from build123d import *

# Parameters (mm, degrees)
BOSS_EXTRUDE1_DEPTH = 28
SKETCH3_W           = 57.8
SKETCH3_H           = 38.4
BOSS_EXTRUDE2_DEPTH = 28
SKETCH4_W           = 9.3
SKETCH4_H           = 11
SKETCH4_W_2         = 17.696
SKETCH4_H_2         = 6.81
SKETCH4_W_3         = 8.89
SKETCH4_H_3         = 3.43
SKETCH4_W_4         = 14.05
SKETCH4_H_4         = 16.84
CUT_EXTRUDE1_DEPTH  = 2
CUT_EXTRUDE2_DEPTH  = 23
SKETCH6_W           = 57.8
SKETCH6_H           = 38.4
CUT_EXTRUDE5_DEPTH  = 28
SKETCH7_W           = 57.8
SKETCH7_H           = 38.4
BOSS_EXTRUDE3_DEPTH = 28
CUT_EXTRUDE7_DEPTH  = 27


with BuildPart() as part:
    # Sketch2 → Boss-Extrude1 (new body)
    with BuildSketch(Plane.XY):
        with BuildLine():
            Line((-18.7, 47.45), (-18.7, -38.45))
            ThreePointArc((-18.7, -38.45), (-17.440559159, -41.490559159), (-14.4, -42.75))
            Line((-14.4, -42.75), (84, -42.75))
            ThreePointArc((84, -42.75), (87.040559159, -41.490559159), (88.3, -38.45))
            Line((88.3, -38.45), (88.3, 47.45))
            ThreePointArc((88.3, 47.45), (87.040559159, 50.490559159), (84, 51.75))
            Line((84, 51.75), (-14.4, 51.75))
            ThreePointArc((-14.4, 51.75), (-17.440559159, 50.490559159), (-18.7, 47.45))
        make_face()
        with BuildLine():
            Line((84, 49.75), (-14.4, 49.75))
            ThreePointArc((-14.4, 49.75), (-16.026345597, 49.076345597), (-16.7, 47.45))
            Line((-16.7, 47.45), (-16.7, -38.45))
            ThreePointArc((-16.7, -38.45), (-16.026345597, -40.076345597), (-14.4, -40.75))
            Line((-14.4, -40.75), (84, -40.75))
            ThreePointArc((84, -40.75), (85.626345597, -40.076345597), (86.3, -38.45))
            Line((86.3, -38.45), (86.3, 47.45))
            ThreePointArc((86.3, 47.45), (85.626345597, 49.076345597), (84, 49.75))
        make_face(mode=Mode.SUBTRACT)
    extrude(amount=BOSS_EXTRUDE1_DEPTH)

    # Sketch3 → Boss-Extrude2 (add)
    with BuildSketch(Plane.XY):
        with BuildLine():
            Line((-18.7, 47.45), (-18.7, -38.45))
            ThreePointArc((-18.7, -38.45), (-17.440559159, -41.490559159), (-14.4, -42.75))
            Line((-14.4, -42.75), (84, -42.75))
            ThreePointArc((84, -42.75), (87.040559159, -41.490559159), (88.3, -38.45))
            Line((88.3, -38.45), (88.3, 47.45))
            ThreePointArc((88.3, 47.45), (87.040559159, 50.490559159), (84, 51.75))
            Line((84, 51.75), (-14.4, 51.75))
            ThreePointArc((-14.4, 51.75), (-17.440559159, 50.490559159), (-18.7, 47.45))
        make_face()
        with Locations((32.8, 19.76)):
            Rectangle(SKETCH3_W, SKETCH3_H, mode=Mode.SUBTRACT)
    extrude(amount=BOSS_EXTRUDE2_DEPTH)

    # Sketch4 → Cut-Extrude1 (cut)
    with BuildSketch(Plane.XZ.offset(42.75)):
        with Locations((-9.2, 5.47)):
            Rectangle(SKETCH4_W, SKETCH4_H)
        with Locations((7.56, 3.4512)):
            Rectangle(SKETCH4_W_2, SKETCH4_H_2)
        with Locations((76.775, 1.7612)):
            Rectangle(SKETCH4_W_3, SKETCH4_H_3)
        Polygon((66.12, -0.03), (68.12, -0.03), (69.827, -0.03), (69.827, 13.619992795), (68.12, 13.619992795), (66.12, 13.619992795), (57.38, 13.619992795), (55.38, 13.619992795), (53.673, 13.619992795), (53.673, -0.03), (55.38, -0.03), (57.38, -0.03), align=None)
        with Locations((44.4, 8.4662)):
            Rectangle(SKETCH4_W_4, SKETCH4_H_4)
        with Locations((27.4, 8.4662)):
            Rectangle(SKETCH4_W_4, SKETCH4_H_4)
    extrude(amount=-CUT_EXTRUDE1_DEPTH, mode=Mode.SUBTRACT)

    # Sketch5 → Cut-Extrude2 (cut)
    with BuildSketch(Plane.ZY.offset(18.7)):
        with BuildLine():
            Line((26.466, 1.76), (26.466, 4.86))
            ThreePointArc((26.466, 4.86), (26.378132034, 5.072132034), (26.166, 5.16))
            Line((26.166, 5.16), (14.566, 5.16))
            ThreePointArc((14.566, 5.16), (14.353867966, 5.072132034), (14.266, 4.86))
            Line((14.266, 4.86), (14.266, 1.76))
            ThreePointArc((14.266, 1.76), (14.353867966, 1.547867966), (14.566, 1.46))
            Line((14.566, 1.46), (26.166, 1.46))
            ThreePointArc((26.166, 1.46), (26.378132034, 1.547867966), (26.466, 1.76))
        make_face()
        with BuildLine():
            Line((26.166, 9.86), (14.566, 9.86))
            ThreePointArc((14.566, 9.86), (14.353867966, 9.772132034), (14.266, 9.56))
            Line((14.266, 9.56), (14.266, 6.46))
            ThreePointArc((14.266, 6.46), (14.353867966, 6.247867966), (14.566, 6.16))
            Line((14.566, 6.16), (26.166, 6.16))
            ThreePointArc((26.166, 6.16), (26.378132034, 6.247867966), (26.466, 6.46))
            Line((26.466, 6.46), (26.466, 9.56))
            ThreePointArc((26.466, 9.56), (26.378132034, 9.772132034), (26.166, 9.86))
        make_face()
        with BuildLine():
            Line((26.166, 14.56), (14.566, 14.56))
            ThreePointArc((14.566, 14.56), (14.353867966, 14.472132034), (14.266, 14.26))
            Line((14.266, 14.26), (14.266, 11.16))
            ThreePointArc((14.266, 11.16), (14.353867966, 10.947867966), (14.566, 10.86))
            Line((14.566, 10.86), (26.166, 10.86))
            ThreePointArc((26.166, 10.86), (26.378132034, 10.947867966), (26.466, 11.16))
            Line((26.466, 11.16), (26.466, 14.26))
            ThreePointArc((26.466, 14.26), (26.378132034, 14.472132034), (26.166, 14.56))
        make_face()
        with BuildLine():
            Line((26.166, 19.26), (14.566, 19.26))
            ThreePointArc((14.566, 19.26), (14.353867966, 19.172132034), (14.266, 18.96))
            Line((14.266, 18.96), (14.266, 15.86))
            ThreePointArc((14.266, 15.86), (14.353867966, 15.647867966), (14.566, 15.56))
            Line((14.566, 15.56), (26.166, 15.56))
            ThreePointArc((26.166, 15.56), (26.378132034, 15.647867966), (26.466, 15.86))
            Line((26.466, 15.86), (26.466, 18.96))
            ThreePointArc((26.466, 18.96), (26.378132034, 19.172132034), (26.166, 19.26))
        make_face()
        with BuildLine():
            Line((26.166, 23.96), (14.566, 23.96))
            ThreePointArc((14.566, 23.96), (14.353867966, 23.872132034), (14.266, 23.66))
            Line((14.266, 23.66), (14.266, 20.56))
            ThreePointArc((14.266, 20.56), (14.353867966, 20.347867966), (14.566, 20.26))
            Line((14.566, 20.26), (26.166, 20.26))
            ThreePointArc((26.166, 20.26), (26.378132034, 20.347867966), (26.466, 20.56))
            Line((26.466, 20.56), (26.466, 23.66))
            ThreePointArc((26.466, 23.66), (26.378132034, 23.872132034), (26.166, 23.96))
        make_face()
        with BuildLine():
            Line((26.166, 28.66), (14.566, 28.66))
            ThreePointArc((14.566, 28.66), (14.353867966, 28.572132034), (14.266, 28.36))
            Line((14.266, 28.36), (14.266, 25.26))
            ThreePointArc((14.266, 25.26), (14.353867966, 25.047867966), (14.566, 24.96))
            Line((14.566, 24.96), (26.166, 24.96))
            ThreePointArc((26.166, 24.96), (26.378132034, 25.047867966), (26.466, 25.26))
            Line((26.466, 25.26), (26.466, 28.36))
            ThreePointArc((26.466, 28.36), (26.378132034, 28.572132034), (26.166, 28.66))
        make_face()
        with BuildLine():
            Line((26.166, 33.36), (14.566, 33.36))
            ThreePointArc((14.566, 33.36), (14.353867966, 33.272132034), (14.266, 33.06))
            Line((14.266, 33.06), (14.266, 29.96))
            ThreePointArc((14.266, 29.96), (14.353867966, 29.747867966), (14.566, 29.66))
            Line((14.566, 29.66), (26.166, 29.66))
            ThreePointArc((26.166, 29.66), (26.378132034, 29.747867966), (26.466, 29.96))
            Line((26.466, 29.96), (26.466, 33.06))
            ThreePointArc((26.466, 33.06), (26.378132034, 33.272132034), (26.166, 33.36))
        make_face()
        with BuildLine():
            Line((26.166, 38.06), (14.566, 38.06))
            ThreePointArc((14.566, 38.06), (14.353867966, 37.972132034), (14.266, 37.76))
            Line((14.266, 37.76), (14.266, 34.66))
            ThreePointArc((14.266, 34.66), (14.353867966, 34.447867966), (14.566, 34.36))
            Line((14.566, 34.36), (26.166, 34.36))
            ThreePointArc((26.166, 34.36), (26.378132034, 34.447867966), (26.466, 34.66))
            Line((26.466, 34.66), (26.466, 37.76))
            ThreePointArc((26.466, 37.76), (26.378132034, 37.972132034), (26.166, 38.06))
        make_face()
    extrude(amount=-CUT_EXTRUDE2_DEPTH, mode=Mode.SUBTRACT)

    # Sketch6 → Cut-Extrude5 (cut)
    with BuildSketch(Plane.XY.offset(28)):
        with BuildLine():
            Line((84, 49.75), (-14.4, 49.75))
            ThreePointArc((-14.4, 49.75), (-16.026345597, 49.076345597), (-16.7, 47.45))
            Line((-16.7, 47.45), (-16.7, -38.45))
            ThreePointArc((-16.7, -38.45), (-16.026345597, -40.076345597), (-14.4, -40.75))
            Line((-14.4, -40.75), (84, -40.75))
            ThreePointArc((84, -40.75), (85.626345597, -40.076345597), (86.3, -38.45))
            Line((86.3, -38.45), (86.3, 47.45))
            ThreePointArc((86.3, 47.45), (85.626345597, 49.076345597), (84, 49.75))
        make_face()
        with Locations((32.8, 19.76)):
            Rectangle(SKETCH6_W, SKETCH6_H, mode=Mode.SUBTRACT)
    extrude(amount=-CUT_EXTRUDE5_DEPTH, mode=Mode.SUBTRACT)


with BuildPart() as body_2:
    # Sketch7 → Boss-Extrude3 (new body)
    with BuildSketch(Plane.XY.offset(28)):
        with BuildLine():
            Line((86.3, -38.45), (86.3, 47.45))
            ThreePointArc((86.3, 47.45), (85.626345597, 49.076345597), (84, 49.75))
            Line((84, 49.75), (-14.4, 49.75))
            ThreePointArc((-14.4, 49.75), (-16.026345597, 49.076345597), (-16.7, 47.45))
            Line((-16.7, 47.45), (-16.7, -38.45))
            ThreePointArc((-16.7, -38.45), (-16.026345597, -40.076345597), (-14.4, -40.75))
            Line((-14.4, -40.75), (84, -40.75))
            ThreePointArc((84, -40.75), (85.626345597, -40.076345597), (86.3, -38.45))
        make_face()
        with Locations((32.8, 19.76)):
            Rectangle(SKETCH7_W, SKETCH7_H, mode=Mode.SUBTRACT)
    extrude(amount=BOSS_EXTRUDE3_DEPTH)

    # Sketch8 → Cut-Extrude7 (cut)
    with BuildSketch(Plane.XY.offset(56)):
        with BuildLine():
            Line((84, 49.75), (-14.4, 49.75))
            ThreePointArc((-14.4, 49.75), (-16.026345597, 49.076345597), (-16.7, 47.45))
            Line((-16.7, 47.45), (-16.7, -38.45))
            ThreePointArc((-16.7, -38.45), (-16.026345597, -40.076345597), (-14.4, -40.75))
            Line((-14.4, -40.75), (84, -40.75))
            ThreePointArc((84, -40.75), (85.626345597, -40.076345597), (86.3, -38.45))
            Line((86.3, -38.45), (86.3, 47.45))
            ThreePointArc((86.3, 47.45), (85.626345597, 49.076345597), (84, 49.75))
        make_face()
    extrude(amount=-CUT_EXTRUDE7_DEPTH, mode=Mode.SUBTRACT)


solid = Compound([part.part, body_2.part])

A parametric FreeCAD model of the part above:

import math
import FreeCAD as App
import Part
import Sketcher
Q = App.Units.Quantity


def add_polygon(sketch, points):
    """Adds a closed chain of lines whose ends are joined by coincident constraints."""
    first, n = sketch.GeometryCount, len(points)
    for a, b in zip(points, points[1:] + points[:1]):
        sketch.addGeometry(Part.LineSegment(App.Vector(*a, 0), App.Vector(*b, 0)), False)
    for i in range(n):
        sketch.addConstraint(Sketcher.Constraint("Coincident", first + i, 2, first + (i + 1) % n, 1))

doc = App.newDocument("Part")
body = doc.addObject("PartDesign::Body", "Body")

# Sketch on XY plane
sketch1 = doc.addObject("Sketcher::SketchObject", "Sketch")
body.addObject(sketch1)
sketch1.AttachmentSupport = (doc.XY_Plane, [""])
sketch1.MapMode = "FlatFace"
sketch1.addGeometry([
    Part.LineSegment(App.Vector(-18.7, 47.5, 0), App.Vector(-18.7, -38.5, 0)),  # 0
    Part.ArcOfCircle(Part.Circle(App.Vector(-14.4, -38.5, 0), App.Vector(0, 0, 1), 4.3), math.radians(180), math.radians(270)),  # 1
    Part.LineSegment(App.Vector(-14.4, -42.8, 0), App.Vector(84, -42.8, 0)),  # 2
    Part.ArcOfCircle(Part.Circle(App.Vector(84, -38.5, 0), App.Vector(0, 0, 1), 4.3), math.radians(-90), math.radians(0)),  # 3
    Part.LineSegment(App.Vector(88.3, -38.5, 0), App.Vector(88.3, 47.5, 0)),  # 4
    Part.ArcOfCircle(Part.Circle(App.Vector(84, 47.5, 0), App.Vector(0, 0, 1), 4.3), math.radians(0), math.radians(90)),  # 5
    Part.LineSegment(App.Vector(84, 51.8, 0), App.Vector(-14.4, 51.8, 0)),  # 6
    Part.ArcOfCircle(Part.Circle(App.Vector(-14.4, 47.5, 0), App.Vector(0, 0, 1), 4.3), math.radians(90), math.radians(180)),  # 7
    Part.LineSegment(App.Vector(-14.4, 49.8, 0), App.Vector(84, 49.8, 0)),  # 8
    Part.ArcOfCircle(Part.Circle(App.Vector(84, 47.5, 0), App.Vector(0, 0, 1), 2.3), math.radians(0), math.radians(90)),  # 9
    Part.LineSegment(App.Vector(86.3, 47.5, 0), App.Vector(86.3, -38.5, 0)),  # 10
    Part.ArcOfCircle(Part.Circle(App.Vector(84, -38.5, 0), App.Vector(0, 0, 1), 2.3), math.radians(-90), math.radians(0)),  # 11
    Part.LineSegment(App.Vector(84, -40.8, 0), App.Vector(-14.4, -40.8, 0)),  # 12
    Part.ArcOfCircle(Part.Circle(App.Vector(-14.4, -38.5, 0), App.Vector(0, 0, 1), 2.3), math.radians(180), math.radians(270)),  # 13
    Part.LineSegment(App.Vector(-16.7, -38.5, 0), App.Vector(-16.7, 47.5, 0)),  # 14
    Part.ArcOfCircle(Part.Circle(App.Vector(-14.4, 47.5, 0), App.Vector(0, 0, 1), 2.3), math.radians(90), math.radians(180)),  # 15
], False)
sketch1.addConstraint([
    Sketcher.Constraint("Tangent", 0, 2, 1, 1),
    Sketcher.Constraint("Tangent", 1, 2, 2, 1),
    Sketcher.Constraint("Tangent", 2, 2, 3, 1),
    Sketcher.Constraint("Tangent", 3, 2, 4, 1),
    Sketcher.Constraint("Tangent", 4, 2, 5, 1),
    Sketcher.Constraint("Tangent", 5, 2, 6, 1),
    Sketcher.Constraint("Tangent", 6, 2, 7, 1),
    Sketcher.Constraint("Tangent", 7, 2, 0, 1),
    Sketcher.Constraint("Tangent", 8, 2, 9, 2),
    Sketcher.Constraint("Tangent", 9, 1, 10, 1),
    Sketcher.Constraint("Tangent", 10, 2, 11, 2),
    Sketcher.Constraint("Tangent", 11, 1, 12, 1),
    Sketcher.Constraint("Tangent", 12, 2, 13, 2),
    Sketcher.Constraint("Tangent", 13, 1, 14, 1),
    Sketcher.Constraint("Tangent", 14, 2, 15, 2),
    Sketcher.Constraint("Tangent", 15, 1, 8, 1),
    Sketcher.Constraint("Vertical", 0),
    Sketcher.Constraint("Horizontal", 2),
    Sketcher.Constraint("Vertical", 4),
    Sketcher.Constraint("Horizontal", 6),
    Sketcher.Constraint("Horizontal", 8),
    Sketcher.Constraint("Vertical", 10),
    Sketcher.Constraint("Horizontal", 12),
    Sketcher.Constraint("Vertical", 14),
    Sketcher.Constraint("Coincident", 9, 3, 5, 3),
    Sketcher.Constraint("Coincident", 11, 3, 3, 3),
    Sketcher.Constraint("Coincident", 13, 3, 1, 3),
    Sketcher.Constraint("Equal", 1, 3),
    Sketcher.Constraint("Equal", 3, 5),
    Sketcher.Constraint("Equal", 5, 7),
    Sketcher.Constraint("Equal", 13, 15),
    Sketcher.Constraint("Radius", 1, Q("4.3 mm")),
    Sketcher.Constraint("Radius", 9, Q("2.3 mm")),
    Sketcher.Constraint("DistanceX", 2, 1, 2, 2, Q("98.4 mm")),
    Sketcher.Constraint("DistanceY", 0, 2, 0, 1, Q("85.9 mm")),
    Sketcher.Constraint("DistanceX", -1, 1, 3, 3, Q("84 mm")),
    Sketcher.Constraint("DistanceY", 1, 3, -1, 1, Q("38.45 mm")),
])
pad1 = doc.addObject("PartDesign::Pad", "Pad")
body.addObject(pad1)
pad1.Profile = sketch1
pad1.Length = 28

# Sketch on XY plane
sketch2 = doc.addObject("Sketcher::SketchObject", "Sketch001")
body.addObject(sketch2)
sketch2.AttachmentSupport = (doc.XY_Plane, [""])
sketch2.MapMode = "FlatFace"
sketch2.addGeometry(Part.LineSegment(App.Vector(-18.7, 47.5, 0), App.Vector(-18.7, -38.5, 0)), False)  # 0
sketch2.addGeometry(Part.ArcOfCircle(Part.Circle(App.Vector(-14.4, -38.5, 0), App.Vector(0, 0, 1), 4.3), math.radians(180), math.radians(270)), False)  # 1
sketch2.addGeometry(Part.LineSegment(App.Vector(-14.4, -42.8, 0), App.Vector(84, -42.8, 0)), False)  # 2
sketch2.addGeometry(Part.ArcOfCircle(Part.Circle(App.Vector(84, -38.5, 0), App.Vector(0, 0, 1), 4.3), math.radians(-90), math.radians(0)), False)  # 3
sketch2.addGeometry(Part.LineSegment(App.Vector(88.3, -38.5, 0), App.Vector(88.3, 47.5, 0)), False)  # 4
sketch2.addGeometry(Part.ArcOfCircle(Part.Circle(App.Vector(84, 47.5, 0), App.Vector(0, 0, 1), 4.3), math.radians(0), math.radians(90)), False)  # 5
sketch2.addGeometry(Part.LineSegment(App.Vector(84, 51.8, 0), App.Vector(-14.4, 51.8, 0)), False)  # 6
sketch2.addGeometry(Part.ArcOfCircle(Part.Circle(App.Vector(-14.4, 47.5, 0), App.Vector(0, 0, 1), 4.3), math.radians(90), math.radians(180)), False)  # 7
add_polygon(sketch2, [(61.7, 0.6), (3.9, 0.6), (3.9, 39), (61.7, 39)])  # lines 8-11
sketch2.addConstraint([
    Sketcher.Constraint("Tangent", 0, 2, 1, 1),
    Sketcher.Constraint("Tangent", 1, 2, 2, 1),
    Sketcher.Constraint("Tangent", 2, 2, 3, 1),
    Sketcher.Constraint("Tangent", 3, 2, 4, 1),
    Sketcher.Constraint("Tangent", 4, 2, 5, 1),
    Sketcher.Constraint("Tangent", 5, 2, 6, 1),
    Sketcher.Constraint("Tangent", 6, 2, 7, 1),
    Sketcher.Constraint("Tangent", 7, 2, 0, 1),
    Sketcher.Constraint("Vertical", 0),
    Sketcher.Constraint("Horizontal", 2),
    Sketcher.Constraint("Vertical", 4),
    Sketcher.Constraint("Horizontal", 6),
    Sketcher.Constraint("Horizontal", 8),
    Sketcher.Constraint("Vertical", 9),
    Sketcher.Constraint("Horizontal", 10),
    Sketcher.Constraint("Vertical", 11),
    Sketcher.Constraint("Equal", 1, 3),
    Sketcher.Constraint("Equal", 3, 5),
    Sketcher.Constraint("Equal", 5, 7),
    Sketcher.Constraint("Radius", 1, Q("4.3 mm")),
    Sketcher.Constraint("DistanceX", 2, 1, 2, 2, Q("98.4 mm")),
    Sketcher.Constraint("DistanceX", 8, 2, 8, 1, Q("57.8 mm")),
    Sketcher.Constraint("DistanceY", 0, 2, 0, 1, Q("85.9 mm")),
    Sketcher.Constraint("DistanceY", 9, 1, 9, 2, Q("38.4 mm")),
    Sketcher.Constraint("DistanceX", -1, 1, 3, 3, Q("84 mm")),
    Sketcher.Constraint("DistanceX", -1, 1, 8, 2, Q("3.9 mm")),
    Sketcher.Constraint("DistanceY", 1, 3, -1, 1, Q("38.45 mm")),
    Sketcher.Constraint("DistanceY", -1, 1, 8, 2, Q("0.56 mm")),
])
pad2 = doc.addObject("PartDesign::Pad", "Pad001")
body.addObject(pad2)
pad2.Profile = sketch2
pad2.Length = 28

# Sketch on XZ plane
sketch3 = doc.addObject("Sketcher::SketchObject", "Sketch002")
body.addObject(sketch3)
sketch3.AttachmentSupport = (doc.XZ_Plane, [""])
sketch3.MapMode = "FlatFace"
sketch3.AttachmentOffset = App.Placement(App.Vector(0, 0, 42.75), App.Rotation())
add_polygon(sketch3, [(-13.8, 11), (-13.8, 0), (-4.5, 0), (-4.5, 11)])  # lines 0-3
add_polygon(sketch3, [(-1.3, 6.9), (-1.3, 0), (16.4, 0), (16.4, 6.9)])  # lines 4-7
add_polygon(sketch3, [(72.3, 3.5), (72.3, 0), (81.2, 0), (81.2, 3.5)])  # lines 8-11
add_polygon(sketch3, [(69.8, 0), (69.8, 13.6), (53.7, 13.6), (53.7, 0)])  # lines 12-15
add_polygon(sketch3, [(37.4, 16.9), (37.4, 0), (51.4, 0), (51.4, 16.9)])  # lines 16-19
add_polygon(sketch3, [(20.4, 16.9), (20.4, 0), (34.4, 0), (34.4, 16.9)])  # lines 20-23
sketch3.addConstraint([
    Sketcher.Constraint("Vertical", 0),
    Sketcher.Constraint("Horizontal", 1),
    Sketcher.Constraint("Vertical", 2),
    Sketcher.Constraint("Horizontal", 3),
    Sketcher.Constraint("Vertical", 4),
    Sketcher.Constraint("Horizontal", 5),
    Sketcher.Constraint("Vertical", 6),
    Sketcher.Constraint("Horizontal", 7),
    Sketcher.Constraint("Vertical", 8),
    Sketcher.Constraint("Horizontal", 9),
    Sketcher.Constraint("Vertical", 10),
    Sketcher.Constraint("Horizontal", 11),
    Sketcher.Constraint("Vertical", 12),
    Sketcher.Constraint("Horizontal", 13),
    Sketcher.Constraint("Vertical", 14),
    Sketcher.Constraint("Horizontal", 15),
    Sketcher.Constraint("Vertical", 16),
    Sketcher.Constraint("Horizontal", 17),
    Sketcher.Constraint("Vertical", 18),
    Sketcher.Constraint("Horizontal", 19),
    Sketcher.Constraint("Vertical", 20),
    Sketcher.Constraint("Horizontal", 21),
    Sketcher.Constraint("Vertical", 22),
    Sketcher.Constraint("Horizontal", 23),
    Sketcher.Constraint("Horizontal", 5, 2, 8, 2),
    Sketcher.Constraint("Horizontal", 1, 2, 14, 2),
    Sketcher.Constraint("Horizontal", 9, 2, 16, 2),
    Sketcher.Constraint("Horizontal", 17, 2, 20, 2),
    Sketcher.Constraint("Horizontal", 19, 2, 22, 2),
    Sketcher.Constraint("Equal", 19, 21),
    Sketcher.Constraint("DistanceY", 0, 2, 0, 1, Q("11 mm")),
    Sketcher.Constraint("DistanceX", 1, 1, 1, 2, Q("9.3 mm")),
    Sketcher.Constraint("DistanceX", 20, 2, 16, 2, Q("17 mm")),
    Sketcher.Constraint("DistanceX", 9, 1, 9, 2, Q("8.89 mm")),
    Sketcher.Constraint("DistanceX", 17, 1, 17, 2, Q("14.05 mm")),
    Sketcher.Constraint("DistanceY", 4, 2, 4, 1, Q("6.81 mm")),
    Sketcher.Constraint("DistanceY", 8, 2, 8, 1, Q("3.43 mm")),
    Sketcher.Constraint("DistanceY", 16, 2, 16, 1, Q("16.84 mm")),
    Sketcher.Constraint("DistanceX", 5, 1, 5, 2, Q("17.696 mm")),
    Sketcher.Constraint("DistanceX", 13, 2, 13, 1, Q("16.154 mm")),
    Sketcher.Constraint("DistanceX", 0, 2, -1, 1, Q("13.85 mm")),
    Sketcher.Constraint("DistanceY", 0, 2, -1, 1, Q("0.03 mm")),
    Sketcher.Constraint("DistanceX", -1, 1, 8, 2, Q("72.33 mm")),
    Sketcher.Constraint("DistanceX", 4, 2, -1, 1, Q("1.288 mm")),
    Sketcher.Constraint("DistanceX", -1, 1, 12, 2, Q("69.827 mm")),
    Sketcher.Constraint("DistanceX", -1, 1, 16, 2, Q("37.375 mm")),
    Sketcher.Constraint("DistanceY", -1, 1, 4, 2, Q("0.0462 mm")),
    Sketcher.Constraint("DistanceY", 12, 1, 12, 2, Q("13.649993 mm")),
])
pocket1 = doc.addObject("PartDesign::Pocket", "Pocket")
body.addObject(pocket1)
pocket1.Profile = sketch3
pocket1.Length = 2

# Sketch on YZ plane
sketch4 = doc.addObject("Sketcher::SketchObject", "Sketch003")
body.addObject(sketch4)
sketch4.AttachmentSupport = (doc.YZ_Plane, [""])
sketch4.MapMode = "FlatFace"
sketch4.AttachmentOffset = App.Placement(App.Vector(0, 0, -18.7), App.Rotation())
sketch4.addGeometry([
    Part.LineSegment(App.Vector(1.76, 26.47, 0), App.Vector(4.86, 26.47, 0)),  # 0
    Part.ArcOfCircle(Part.Circle(App.Vector(4.86, 26.17, 0), App.Vector(0, 0, 1), 0.3), math.radians(0), math.radians(90)),  # 1
    Part.LineSegment(App.Vector(5.16, 26.17, 0), App.Vector(5.16, 14.57, 0)),  # 2
    Part.ArcOfCircle(Part.Circle(App.Vector(4.86, 14.57, 0), App.Vector(0, 0, 1), 0.3), math.radians(-90), math.radians(0)),  # 3
    Part.LineSegment(App.Vector(4.86, 14.27, 0), App.Vector(1.76, 14.27, 0)),  # 4
    Part.ArcOfCircle(Part.Circle(App.Vector(1.76, 14.57, 0), App.Vector(0, 0, 1), 0.3), math.radians(-180), math.radians(-90)),  # 5
    Part.LineSegment(App.Vector(1.46, 14.57, 0), App.Vector(1.46, 26.17, 0)),  # 6
    Part.ArcOfCircle(Part.Circle(App.Vector(1.76, 26.17, 0), App.Vector(0, 0, 1), 0.3), math.radians(90), math.radians(180)),  # 7
    Part.LineSegment(App.Vector(9.86, 26.17, 0), App.Vector(9.86, 14.57, 0)),  # 8
    Part.ArcOfCircle(Part.Circle(App.Vector(9.56, 14.57, 0), App.Vector(0, 0, 1), 0.3), math.radians(-90), math.radians(0)),  # 9
    Part.LineSegment(App.Vector(9.56, 14.27, 0), App.Vector(6.46, 14.27, 0)),  # 10
    Part.ArcOfCircle(Part.Circle(App.Vector(6.46, 14.57, 0), App.Vector(0, 0, 1), 0.3), math.radians(-180), math.radians(-90)),  # 11
    Part.LineSegment(App.Vector(6.16, 14.57, 0), App.Vector(6.16, 26.17, 0)),  # 12
    Part.ArcOfCircle(Part.Circle(App.Vector(6.46, 26.17, 0), App.Vector(0, 0, 1), 0.3), math.radians(90), math.radians(180)),  # 13
    Part.LineSegment(App.Vector(6.46, 26.47, 0), App.Vector(9.56, 26.47, 0)),  # 14
    Part.ArcOfCircle(Part.Circle(App.Vector(9.56, 26.17, 0), App.Vector(0, 0, 1), 0.3), math.radians(0), math.radians(90)),  # 15
    Part.LineSegment(App.Vector(14.56, 26.17, 0), App.Vector(14.56, 14.57, 0)),  # 16
    Part.ArcOfCircle(Part.Circle(App.Vector(14.26, 14.57, 0), App.Vector(0, 0, 1), 0.3), math.radians(-90), math.radians(0)),  # 17
    Part.LineSegment(App.Vector(14.26, 14.27, 0), App.Vector(11.16, 14.27, 0)),  # 18
    Part.ArcOfCircle(Part.Circle(App.Vector(11.16, 14.57, 0), App.Vector(0, 0, 1), 0.3), math.radians(-180), math.radians(-90)),  # 19
    Part.LineSegment(App.Vector(10.86, 14.57, 0), App.Vector(10.86, 26.17, 0)),  # 20
    Part.ArcOfCircle(Part.Circle(App.Vector(11.16, 26.17, 0), App.Vector(0, 0, 1), 0.3), math.radians(90), math.radians(180)),  # 21
    Part.LineSegment(App.Vector(11.16, 26.47, 0), App.Vector(14.26, 26.47, 0)),  # 22
    Part.ArcOfCircle(Part.Circle(App.Vector(14.26, 26.17, 0), App.Vector(0, 0, 1), 0.3), math.radians(0), math.radians(90)),  # 23
    Part.LineSegment(App.Vector(19.26, 26.17, 0), App.Vector(19.26, 14.57, 0)),  # 24
    Part.ArcOfCircle(Part.Circle(App.Vector(18.96, 14.57, 0), App.Vector(0, 0, 1), 0.3), math.radians(-90), math.radians(0)),  # 25
    Part.LineSegment(App.Vector(18.96, 14.27, 0), App.Vector(15.86, 14.27, 0)),  # 26
    Part.ArcOfCircle(Part.Circle(App.Vector(15.86, 14.57, 0), App.Vector(0, 0, 1), 0.3), math.radians(-180), math.radians(-90)),  # 27
    Part.LineSegment(App.Vector(15.56, 14.57, 0), App.Vector(15.56, 26.17, 0)),  # 28
    Part.ArcOfCircle(Part.Circle(App.Vector(15.86, 26.17, 0), App.Vector(0, 0, 1), 0.3), math.radians(90), math.radians(180)),  # 29
    Part.LineSegment(App.Vector(15.86, 26.47, 0), App.Vector(18.96, 26.47, 0)),  # 30
    Part.ArcOfCircle(Part.Circle(App.Vector(18.96, 26.17, 0), App.Vector(0, 0, 1), 0.3), math.radians(0), math.radians(90)),  # 31
    Part.LineSegment(App.Vector(23.96, 26.17, 0), App.Vector(23.96, 14.57, 0)),  # 32
    Part.ArcOfCircle(Part.Circle(App.Vector(23.66, 14.57, 0), App.Vector(0, 0, 1), 0.3), math.radians(-90), math.radians(0)),  # 33
    Part.LineSegment(App.Vector(23.66, 14.27, 0), App.Vector(20.56, 14.27, 0)),  # 34
    Part.ArcOfCircle(Part.Circle(App.Vector(20.56, 14.57, 0), App.Vector(0, 0, 1), 0.3), math.radians(-180), math.radians(-90)),  # 35
    Part.LineSegment(App.Vector(20.26, 14.57, 0), App.Vector(20.26, 26.17, 0)),  # 36
    Part.ArcOfCircle(Part.Circle(App.Vector(20.56, 26.17, 0), App.Vector(0, 0, 1), 0.3), math.radians(90), math.radians(180)),  # 37
    Part.LineSegment(App.Vector(20.56, 26.47, 0), App.Vector(23.66, 26.47, 0)),  # 38
    Part.ArcOfCircle(Part.Circle(App.Vector(23.66, 26.17, 0), App.Vector(0, 0, 1), 0.3), math.radians(0), math.radians(90)),  # 39
    Part.LineSegment(App.Vector(28.66, 26.17, 0), App.Vector(28.66, 14.57, 0)),  # 40
    Part.ArcOfCircle(Part.Circle(App.Vector(28.36, 14.57, 0), App.Vector(0, 0, 1), 0.3), math.radians(-90), math.radians(0)),  # 41
    Part.LineSegment(App.Vector(28.36, 14.27, 0), App.Vector(25.26, 14.27, 0)),  # 42
    Part.ArcOfCircle(Part.Circle(App.Vector(25.26, 14.57, 0), App.Vector(0, 0, 1), 0.3), math.radians(-180), math.radians(-90)),  # 43
    Part.LineSegment(App.Vector(24.96, 14.57, 0), App.Vector(24.96, 26.17, 0)),  # 44
    Part.ArcOfCircle(Part.Circle(App.Vector(25.26, 26.17, 0), App.Vector(0, 0, 1), 0.3), math.radians(90), math.radians(180)),  # 45
    Part.LineSegment(App.Vector(25.26, 26.47, 0), App.Vector(28.36, 26.47, 0)),  # 46
    Part.ArcOfCircle(Part.Circle(App.Vector(28.36, 26.17, 0), App.Vector(0, 0, 1), 0.3), math.radians(0), math.radians(90)),  # 47
    Part.LineSegment(App.Vector(33.36, 26.17, 0), App.Vector(33.36, 14.57, 0)),  # 48
    Part.ArcOfCircle(Part.Circle(App.Vector(33.06, 14.57, 0), App.Vector(0, 0, 1), 0.3), math.radians(-90), math.radians(0)),  # 49
    Part.LineSegment(App.Vector(33.06, 14.27, 0), App.Vector(29.96, 14.27, 0)),  # 50
    Part.ArcOfCircle(Part.Circle(App.Vector(29.96, 14.57, 0), App.Vector(0, 0, 1), 0.3), math.radians(-180), math.radians(-90)),  # 51
    Part.LineSegment(App.Vector(29.66, 14.57, 0), App.Vector(29.66, 26.17, 0)),  # 52
    Part.ArcOfCircle(Part.Circle(App.Vector(29.96, 26.17, 0), App.Vector(0, 0, 1), 0.3), math.radians(90), math.radians(180)),  # 53
    Part.LineSegment(App.Vector(29.96, 26.47, 0), App.Vector(33.06, 26.47, 0)),  # 54
    Part.ArcOfCircle(Part.Circle(App.Vector(33.06, 26.17, 0), App.Vector(0, 0, 1), 0.3), math.radians(0), math.radians(90)),  # 55
    Part.LineSegment(App.Vector(38.06, 26.17, 0), App.Vector(38.06, 14.57, 0)),  # 56
    Part.ArcOfCircle(Part.Circle(App.Vector(37.76, 14.57, 0), App.Vector(0, 0, 1), 0.3), math.radians(-90), math.radians(0)),  # 57
    Part.LineSegment(App.Vector(37.76, 14.27, 0), App.Vector(34.66, 14.27, 0)),  # 58
    Part.ArcOfCircle(Part.Circle(App.Vector(34.66, 14.57, 0), App.Vector(0, 0, 1), 0.3), math.radians(-180), math.radians(-90)),  # 59
    Part.LineSegment(App.Vector(34.36, 14.57, 0), App.Vector(34.36, 26.17, 0)),  # 60
    Part.ArcOfCircle(Part.Circle(App.Vector(34.66, 26.17, 0), App.Vector(0, 0, 1), 0.3), math.radians(90), math.radians(180)),  # 61
    Part.LineSegment(App.Vector(34.66, 26.47, 0), App.Vector(37.76, 26.47, 0)),  # 62
    Part.ArcOfCircle(Part.Circle(App.Vector(37.76, 26.17, 0), App.Vector(0, 0, 1), 0.3), math.radians(0), math.radians(90)),  # 63
], False)
sketch4.addConstraint([
    Sketcher.Constraint("Tangent", 0, 2, 1, 2),
    Sketcher.Constraint("Tangent", 1, 1, 2, 1),
    Sketcher.Constraint("Tangent", 2, 2, 3, 2),
    Sketcher.Constraint("Tangent", 3, 1, 4, 1),
    Sketcher.Constraint("Tangent", 4, 2, 5, 2),
    Sketcher.Constraint("Tangent", 5, 1, 6, 1),
    Sketcher.Constraint("Tangent", 6, 2, 7, 2),
    Sketcher.Constraint("Tangent", 7, 1, 0, 1),
    Sketcher.Constraint("Tangent", 8, 2, 9, 2),
    Sketcher.Constraint("Tangent", 9, 1, 10, 1),
    Sketcher.Constraint("Tangent", 10, 2, 11, 2),
    Sketcher.Constraint("Tangent", 11, 1, 12, 1),
    Sketcher.Constraint("Tangent", 12, 2, 13, 2),
    Sketcher.Constraint("Tangent", 13, 1, 14, 1),
    Sketcher.Constraint("Tangent", 14, 2, 15, 2),
    Sketcher.Constraint("Tangent", 15, 1, 8, 1),
    Sketcher.Constraint("Tangent", 16, 2, 17, 2),
    Sketcher.Constraint("Tangent", 17, 1, 18, 1),
    Sketcher.Constraint("Tangent", 18, 2, 19, 2),
    Sketcher.Constraint("Tangent", 19, 1, 20, 1),
    Sketcher.Constraint("Tangent", 20, 2, 21, 2),
    Sketcher.Constraint("Tangent", 21, 1, 22, 1),
    Sketcher.Constraint("Tangent", 22, 2, 23, 2),
    Sketcher.Constraint("Tangent", 23, 1, 16, 1),
    Sketcher.Constraint("Tangent", 24, 2, 25, 2),
    Sketcher.Constraint("Tangent", 25, 1, 26, 1),
    Sketcher.Constraint("Tangent", 26, 2, 27, 2),
    Sketcher.Constraint("Tangent", 27, 1, 28, 1),
    Sketcher.Constraint("Tangent", 28, 2, 29, 2),
    Sketcher.Constraint("Tangent", 29, 1, 30, 1),
    Sketcher.Constraint("Tangent", 30, 2, 31, 2),
    Sketcher.Constraint("Tangent", 31, 1, 24, 1),
    Sketcher.Constraint("Tangent", 32, 2, 33, 2),
    Sketcher.Constraint("Tangent", 33, 1, 34, 1),
    Sketcher.Constraint("Tangent", 34, 2, 35, 2),
    Sketcher.Constraint("Tangent", 35, 1, 36, 1),
    Sketcher.Constraint("Tangent", 36, 2, 37, 2),
    Sketcher.Constraint("Tangent", 37, 1, 38, 1),
    Sketcher.Constraint("Tangent", 38, 2, 39, 2),
    Sketcher.Constraint("Tangent", 39, 1, 32, 1),
    Sketcher.Constraint("Tangent", 40, 2, 41, 2),
    Sketcher.Constraint("Tangent", 41, 1, 42, 1),
    Sketcher.Constraint("Tangent", 42, 2, 43, 2),
    Sketcher.Constraint("Tangent", 43, 1, 44, 1),
    Sketcher.Constraint("Tangent", 44, 2, 45, 2),
    Sketcher.Constraint("Tangent", 45, 1, 46, 1),
    Sketcher.Constraint("Tangent", 46, 2, 47, 2),
    Sketcher.Constraint("Tangent", 47, 1, 40, 1),
    Sketcher.Constraint("Tangent", 48, 2, 49, 2),
    Sketcher.Constraint("Tangent", 49, 1, 50, 1),
    Sketcher.Constraint("Tangent", 50, 2, 51, 2),
    Sketcher.Constraint("Tangent", 51, 1, 52, 1),
    Sketcher.Constraint("Tangent", 52, 2, 53, 2),
    Sketcher.Constraint("Tangent", 53, 1, 54, 1),
    Sketcher.Constraint("Tangent", 54, 2, 55, 2),
    Sketcher.Constraint("Tangent", 55, 1, 48, 1),
    Sketcher.Constraint("Tangent", 56, 2, 57, 2),
    Sketcher.Constraint("Tangent", 57, 1, 58, 1),
    Sketcher.Constraint("Tangent", 58, 2, 59, 2),
    Sketcher.Constraint("Tangent", 59, 1, 60, 1),
    Sketcher.Constraint("Tangent", 60, 2, 61, 2),
    Sketcher.Constraint("Tangent", 61, 1, 62, 1),
    Sketcher.Constraint("Tangent", 62, 2, 63, 2),
    Sketcher.Constraint("Tangent", 63, 1, 56, 1),
    Sketcher.Constraint("Horizontal", 0),
    Sketcher.Constraint("Vertical", 2),
    Sketcher.Constraint("Horizontal", 4),
    Sketcher.Constraint("Vertical", 6),
    Sketcher.Constraint("Vertical", 8),
    Sketcher.Constraint("Horizontal", 10),
    Sketcher.Constraint("Vertical", 12),
    Sketcher.Constraint("Horizontal", 14),
    Sketcher.Constraint("Vertical", 16),
    Sketcher.Constraint("Horizontal", 18),
    Sketcher.Constraint("Vertical", 20),
    Sketcher.Constraint("Horizontal", 22),
    Sketcher.Constraint("Vertical", 24),
    Sketcher.Constraint("Horizontal", 26),
    Sketcher.Constraint("Vertical", 28),
    Sketcher.Constraint("Horizontal", 30),
    Sketcher.Constraint("Vertical", 32),
    Sketcher.Constraint("Horizontal", 34),
    Sketcher.Constraint("Vertical", 36),
    Sketcher.Constraint("Horizontal", 38),
    Sketcher.Constraint("Vertical", 40),
    Sketcher.Constraint("Horizontal", 42),
    Sketcher.Constraint("Vertical", 44),
    Sketcher.Constraint("Horizontal", 46),
    Sketcher.Constraint("Vertical", 48),
    Sketcher.Constraint("Horizontal", 50),
    Sketcher.Constraint("Vertical", 52),
    Sketcher.Constraint("Horizontal", 54),
    Sketcher.Constraint("Vertical", 56),
    Sketcher.Constraint("Horizontal", 58),
    Sketcher.Constraint("Vertical", 60),
    Sketcher.Constraint("Horizontal", 62),
    Sketcher.Constraint("Equal", 1, 3),
    Sketcher.Constraint("Equal", 3, 5),
    Sketcher.Constraint("Equal", 5, 7),
    Sketcher.Constraint("Equal", 7, 9),
    Sketcher.Constraint("Equal", 9, 11),
    Sketcher.Constraint("Equal", 11, 13),
    Sketcher.Constraint("Equal", 13, 15),
    Sketcher.Constraint("Equal", 15, 17),
    Sketcher.Constraint("Equal", 17, 19),
    Sketcher.Constraint("Equal", 19, 21),
    Sketcher.Constraint("Equal", 21, 23),
    Sketcher.Constraint("Equal", 23, 25),
    Sketcher.Constraint("Equal", 25, 27),
    Sketcher.Constraint("Equal", 27, 29),
    Sketcher.Constraint("Equal", 29, 31),
    Sketcher.Constraint("Equal", 31, 33),
    Sketcher.Constraint("Equal", 33, 35),
    Sketcher.Constraint("Equal", 35, 37),
    Sketcher.Constraint("Equal", 37, 39),
    Sketcher.Constraint("Equal", 39, 41),
    Sketcher.Constraint("Equal", 41, 43),
    Sketcher.Constraint("Equal", 43, 45),
    Sketcher.Constraint("Equal", 45, 47),
    Sketcher.Constraint("Equal", 47, 49),
    Sketcher.Constraint("Equal", 49, 51),
    Sketcher.Constraint("Equal", 51, 53),
    Sketcher.Constraint("Equal", 53, 55),
    Sketcher.Constraint("Equal", 55, 57),
    Sketcher.Constraint("Equal", 57, 59),
    Sketcher.Constraint("Equal", 59, 61),
    Sketcher.Constraint("Equal", 61, 63),
    Sketcher.Constraint("Horizontal", 5, 3, 9, 3),
    Sketcher.Constraint("Horizontal", 7, 3, 13, 3),
    Sketcher.Constraint("Horizontal", 11, 3, 17, 3),
    Sketcher.Constraint("Horizontal", 15, 3, 21, 3),
    Sketcher.Constraint("Horizontal", 19, 3, 25, 3),
    Sketcher.Constraint("Horizontal", 23, 3, 29, 3),
    Sketcher.Constraint("Horizontal", 27, 3, 33, 3),
    Sketcher.Constraint("Horizontal", 31, 3, 37, 3),
    Sketcher.Constraint("Horizontal", 35, 3, 41, 3),
    Sketcher.Constraint("Horizontal", 39, 3, 45, 3),
    Sketcher.Constraint("Horizontal", 43, 3, 49, 3),
    Sketcher.Constraint("Horizontal", 47, 3, 53, 3),
    Sketcher.Constraint("Horizontal", 51, 3, 57, 3),
    Sketcher.Constraint("Horizontal", 55, 3, 61, 3),
    Sketcher.Constraint("Equal", 4, 10),
    Sketcher.Constraint("Equal", 14, 18),
    Sketcher.Constraint("Equal", 22, 26),
    Sketcher.Constraint("Equal", 30, 34),
    Sketcher.Constraint("Equal", 38, 42),
    Sketcher.Constraint("Equal", 46, 50),
    Sketcher.Constraint("Equal", 54, 58),
    Sketcher.Constraint("Radius", 1, Q("0.3 mm")),
    Sketcher.Constraint("DistanceX", 0, 1, 0, 2, Q("3.1 mm")),
    Sketcher.Constraint("DistanceY", 2, 2, 2, 1, Q("11.6 mm")),
    Sketcher.Constraint("DistanceX", -1, 1, 1, 3, Q("4.86 mm")),
    Sketcher.Constraint("DistanceX", -1, 1, 9, 3, Q("9.56 mm")),
    Sketcher.Constraint("DistanceX", -1, 1, 17, 3, Q("14.26 mm")),
    Sketcher.Constraint("DistanceX", -1, 1, 25, 3, Q("18.96 mm")),
    Sketcher.Constraint("DistanceX", -1, 1, 33, 3, Q("23.66 mm")),
    Sketcher.Constraint("DistanceX", -1, 1, 41, 3, Q("28.36 mm")),
    Sketcher.Constraint("DistanceX", -1, 1, 49, 3, Q("33.06 mm")),
    Sketcher.Constraint("DistanceX", -1, 1, 57, 3, Q("37.76 mm")),
    Sketcher.Constraint("DistanceY", -1, 1, 1, 3, Q("26.166 mm")),
])
pocket2 = doc.addObject("PartDesign::Pocket", "Pocket001")
body.addObject(pocket2)
pocket2.Profile = sketch4
pocket2.Length = 23
pocket2.Reversed = True

# Sketch on XY plane
sketch5 = doc.addObject("Sketcher::SketchObject", "Sketch004")
body.addObject(sketch5)
sketch5.AttachmentSupport = (doc.XY_Plane, [""])
sketch5.MapMode = "FlatFace"
sketch5.AttachmentOffset = App.Placement(App.Vector(0, 0, 28), App.Rotation())
sketch5.addGeometry(Part.LineSegment(App.Vector(84, 49.8, 0), App.Vector(-14.4, 49.8, 0)), False)  # 0
sketch5.addGeometry(Part.ArcOfCircle(Part.Circle(App.Vector(-14.4, 47.5, 0), App.Vector(0, 0, 1), 2.3), math.radians(90), math.radians(180)), False)  # 1
sketch5.addGeometry(Part.LineSegment(App.Vector(-16.7, 47.5, 0), App.Vector(-16.7, -38.5, 0)), False)  # 2
sketch5.addGeometry(Part.ArcOfCircle(Part.Circle(App.Vector(-14.4, -38.5, 0), App.Vector(0, 0, 1), 2.3), math.radians(180), math.radians(270)), False)  # 3
sketch5.addGeometry(Part.LineSegment(App.Vector(-14.4, -40.8, 0), App.Vector(84, -40.8, 0)), False)  # 4
sketch5.addGeometry(Part.ArcOfCircle(Part.Circle(App.Vector(84, -38.5, 0), App.Vector(0, 0, 1), 2.3), math.radians(-90), math.radians(0)), False)  # 5
sketch5.addGeometry(Part.LineSegment(App.Vector(86.3, -38.5, 0), App.Vector(86.3, 47.5, 0)), False)  # 6
sketch5.addGeometry(Part.ArcOfCircle(Part.Circle(App.Vector(84, 47.5, 0), App.Vector(0, 0, 1), 2.3), math.radians(0), math.radians(90)), False)  # 7
add_polygon(sketch5, [(61.7, 0.6), (3.9, 0.6), (3.9, 39), (61.7, 39)])  # lines 8-11
sketch5.addConstraint([
    Sketcher.Constraint("Tangent", 0, 2, 1, 1),
    Sketcher.Constraint("Tangent", 1, 2, 2, 1),
    Sketcher.Constraint("Tangent", 2, 2, 3, 1),
    Sketcher.Constraint("Tangent", 3, 2, 4, 1),
    Sketcher.Constraint("Tangent", 4, 2, 5, 1),
    Sketcher.Constraint("Tangent", 5, 2, 6, 1),
    Sketcher.Constraint("Tangent", 6, 2, 7, 1),
    Sketcher.Constraint("Tangent", 7, 2, 0, 1),
    Sketcher.Constraint("Horizontal", 0),
    Sketcher.Constraint("Vertical", 2),
    Sketcher.Constraint("Horizontal", 4),
    Sketcher.Constraint("Vertical", 6),
    Sketcher.Constraint("Horizontal", 8),
    Sketcher.Constraint("Vertical", 9),
    Sketcher.Constraint("Horizontal", 10),
    Sketcher.Constraint("Vertical", 11),
    Sketcher.Constraint("Equal", 1, 3),
    Sketcher.Constraint("Equal", 3, 5),
    Sketcher.Constraint("Equal", 5, 7),
    Sketcher.Constraint("Radius", 1, Q("2.3 mm")),
    Sketcher.Constraint("DistanceX", 0, 2, 0, 1, Q("98.4 mm")),
    Sketcher.Constraint("DistanceX", 8, 2, 8, 1, Q("57.8 mm")),
    Sketcher.Constraint("DistanceY", 2, 2, 2, 1, Q("85.9 mm")),
    Sketcher.Constraint("DistanceY", 9, 1, 9, 2, Q("38.4 mm")),
    Sketcher.Constraint("DistanceX", -1, 1, 5, 3, Q("84 mm")),
    Sketcher.Constraint("DistanceX", -1, 1, 8, 2, Q("3.9 mm")),
    Sketcher.Constraint("DistanceY", -1, 1, 1, 3, Q("47.45 mm")),
    Sketcher.Constraint("DistanceY", -1, 1, 8, 2, Q("0.56 mm")),
])
pocket3 = doc.addObject("PartDesign::Pocket", "Pocket002")
body.addObject(pocket3)
pocket3.Profile = sketch5
pocket3.Length = 28
body2 = doc.addObject("PartDesign::Body", "Body001")

# Sketch on XY plane
sketch6 = doc.addObject("Sketcher::SketchObject", "Sketch005")
body2.addObject(sketch6)
sketch6.AttachmentSupport = (doc.getObject("XY_Plane001"), [""])
sketch6.MapMode = "FlatFace"
sketch6.AttachmentOffset = App.Placement(App.Vector(0, 0, 28), App.Rotation())
sketch6.addGeometry(Part.LineSegment(App.Vector(86.3, -38.5, 0), App.Vector(86.3, 47.5, 0)), False)  # 0
sketch6.addGeometry(Part.ArcOfCircle(Part.Circle(App.Vector(84, 47.5, 0), App.Vector(0, 0, 1), 2.3), math.radians(0), math.radians(90)), False)  # 1
sketch6.addGeometry(Part.LineSegment(App.Vector(84, 49.8, 0), App.Vector(-14.4, 49.8, 0)), False)  # 2
sketch6.addGeometry(Part.ArcOfCircle(Part.Circle(App.Vector(-14.4, 47.5, 0), App.Vector(0, 0, 1), 2.3), math.radians(90), math.radians(180)), False)  # 3
sketch6.addGeometry(Part.LineSegment(App.Vector(-16.7, 47.5, 0), App.Vector(-16.7, -38.5, 0)), False)  # 4
sketch6.addGeometry(Part.ArcOfCircle(Part.Circle(App.Vector(-14.4, -38.5, 0), App.Vector(0, 0, 1), 2.3), math.radians(180), math.radians(270)), False)  # 5
sketch6.addGeometry(Part.LineSegment(App.Vector(-14.4, -40.8, 0), App.Vector(84, -40.8, 0)), False)  # 6
sketch6.addGeometry(Part.ArcOfCircle(Part.Circle(App.Vector(84, -38.5, 0), App.Vector(0, 0, 1), 2.3), math.radians(-90), math.radians(0)), False)  # 7
add_polygon(sketch6, [(61.7, 0.6), (3.9, 0.6), (3.9, 39), (61.7, 39)])  # lines 8-11
sketch6.addConstraint([
    Sketcher.Constraint("Tangent", 0, 2, 1, 1),
    Sketcher.Constraint("Tangent", 1, 2, 2, 1),
    Sketcher.Constraint("Tangent", 2, 2, 3, 1),
    Sketcher.Constraint("Tangent", 3, 2, 4, 1),
    Sketcher.Constraint("Tangent", 4, 2, 5, 1),
    Sketcher.Constraint("Tangent", 5, 2, 6, 1),
    Sketcher.Constraint("Tangent", 6, 2, 7, 1),
    Sketcher.Constraint("Tangent", 7, 2, 0, 1),
    Sketcher.Constraint("Vertical", 0),
    Sketcher.Constraint("Horizontal", 2),
    Sketcher.Constraint("Vertical", 4),
    Sketcher.Constraint("Horizontal", 6),
    Sketcher.Constraint("Horizontal", 8),
    Sketcher.Constraint("Vertical", 9),
    Sketcher.Constraint("Horizontal", 10),
    Sketcher.Constraint("Vertical", 11),
    Sketcher.Constraint("Equal", 1, 3),
    Sketcher.Constraint("Equal", 3, 5),
    Sketcher.Constraint("Equal", 5, 7),
    Sketcher.Constraint("Radius", 1, Q("2.3 mm")),
    Sketcher.Constraint("DistanceX", 2, 2, 2, 1, Q("98.4 mm")),
    Sketcher.Constraint("DistanceX", 8, 2, 8, 1, Q("57.8 mm")),
    Sketcher.Constraint("DistanceY", 0, 1, 0, 2, Q("85.9 mm")),
    Sketcher.Constraint("DistanceY", 9, 1, 9, 2, Q("38.4 mm")),
    Sketcher.Constraint("DistanceX", -1, 1, 1, 3, Q("84 mm")),
    Sketcher.Constraint("DistanceX", -1, 1, 8, 2, Q("3.9 mm")),
    Sketcher.Constraint("DistanceY", -1, 1, 1, 3, Q("47.45 mm")),
    Sketcher.Constraint("DistanceY", -1, 1, 8, 2, Q("0.56 mm")),
])
pad3 = doc.addObject("PartDesign::Pad", "Pad002")
body2.addObject(pad3)
pad3.Profile = sketch6
pad3.Length = 28

# Sketch on XY plane
sketch7 = doc.addObject("Sketcher::SketchObject", "Sketch006")
body2.addObject(sketch7)
sketch7.AttachmentSupport = (doc.getObject("XY_Plane001"), [""])
sketch7.MapMode = "FlatFace"
sketch7.AttachmentOffset = App.Placement(App.Vector(0, 0, 56), App.Rotation())
sketch7.addGeometry([
    Part.LineSegment(App.Vector(84, 49.8, 0), App.Vector(-14.4, 49.8, 0)),  # 0
    Part.ArcOfCircle(Part.Circle(App.Vector(-14.4, 47.5, 0), App.Vector(0, 0, 1), 2.3), math.radians(90), math.radians(180)),  # 1
    Part.LineSegment(App.Vector(-16.7, 47.5, 0), App.Vector(-16.7, -38.5, 0)),  # 2
    Part.ArcOfCircle(Part.Circle(App.Vector(-14.4, -38.5, 0), App.Vector(0, 0, 1), 2.3), math.radians(180), math.radians(270)),  # 3
    Part.LineSegment(App.Vector(-14.4, -40.8, 0), App.Vector(84, -40.8, 0)),  # 4
    Part.ArcOfCircle(Part.Circle(App.Vector(84, -38.5, 0), App.Vector(0, 0, 1), 2.3), math.radians(-90), math.radians(0)),  # 5
    Part.LineSegment(App.Vector(86.3, -38.5, 0), App.Vector(86.3, 47.5, 0)),  # 6
    Part.ArcOfCircle(Part.Circle(App.Vector(84, 47.5, 0), App.Vector(0, 0, 1), 2.3), math.radians(0), math.radians(90)),  # 7
], False)
sketch7.addConstraint([
    Sketcher.Constraint("Tangent", 0, 2, 1, 1),
    Sketcher.Constraint("Tangent", 1, 2, 2, 1),
    Sketcher.Constraint("Tangent", 2, 2, 3, 1),
    Sketcher.Constraint("Tangent", 3, 2, 4, 1),
    Sketcher.Constraint("Tangent", 4, 2, 5, 1),
    Sketcher.Constraint("Tangent", 5, 2, 6, 1),
    Sketcher.Constraint("Tangent", 6, 2, 7, 1),
    Sketcher.Constraint("Tangent", 7, 2, 0, 1),
    Sketcher.Constraint("Horizontal", 0),
    Sketcher.Constraint("Vertical", 2),
    Sketcher.Constraint("Horizontal", 4),
    Sketcher.Constraint("Vertical", 6),
    Sketcher.Constraint("Equal", 1, 3),
    Sketcher.Constraint("Equal", 3, 5),
    Sketcher.Constraint("Equal", 5, 7),
    Sketcher.Constraint("Radius", 1, Q("2.3 mm")),
    Sketcher.Constraint("DistanceX", 0, 2, 0, 1, Q("98.4 mm")),
    Sketcher.Constraint("DistanceY", 2, 2, 2, 1, Q("85.9 mm")),
    Sketcher.Constraint("DistanceX", -1, 1, 5, 3, Q("84 mm")),
    Sketcher.Constraint("DistanceY", -1, 1, 1, 3, Q("47.45 mm")),
])
pocket4 = doc.addObject("PartDesign::Pocket", "Pocket003")
body2.addObject(pocket4)
pocket4.Profile = sketch7
pocket4.Length = 27

doc.recompute()
